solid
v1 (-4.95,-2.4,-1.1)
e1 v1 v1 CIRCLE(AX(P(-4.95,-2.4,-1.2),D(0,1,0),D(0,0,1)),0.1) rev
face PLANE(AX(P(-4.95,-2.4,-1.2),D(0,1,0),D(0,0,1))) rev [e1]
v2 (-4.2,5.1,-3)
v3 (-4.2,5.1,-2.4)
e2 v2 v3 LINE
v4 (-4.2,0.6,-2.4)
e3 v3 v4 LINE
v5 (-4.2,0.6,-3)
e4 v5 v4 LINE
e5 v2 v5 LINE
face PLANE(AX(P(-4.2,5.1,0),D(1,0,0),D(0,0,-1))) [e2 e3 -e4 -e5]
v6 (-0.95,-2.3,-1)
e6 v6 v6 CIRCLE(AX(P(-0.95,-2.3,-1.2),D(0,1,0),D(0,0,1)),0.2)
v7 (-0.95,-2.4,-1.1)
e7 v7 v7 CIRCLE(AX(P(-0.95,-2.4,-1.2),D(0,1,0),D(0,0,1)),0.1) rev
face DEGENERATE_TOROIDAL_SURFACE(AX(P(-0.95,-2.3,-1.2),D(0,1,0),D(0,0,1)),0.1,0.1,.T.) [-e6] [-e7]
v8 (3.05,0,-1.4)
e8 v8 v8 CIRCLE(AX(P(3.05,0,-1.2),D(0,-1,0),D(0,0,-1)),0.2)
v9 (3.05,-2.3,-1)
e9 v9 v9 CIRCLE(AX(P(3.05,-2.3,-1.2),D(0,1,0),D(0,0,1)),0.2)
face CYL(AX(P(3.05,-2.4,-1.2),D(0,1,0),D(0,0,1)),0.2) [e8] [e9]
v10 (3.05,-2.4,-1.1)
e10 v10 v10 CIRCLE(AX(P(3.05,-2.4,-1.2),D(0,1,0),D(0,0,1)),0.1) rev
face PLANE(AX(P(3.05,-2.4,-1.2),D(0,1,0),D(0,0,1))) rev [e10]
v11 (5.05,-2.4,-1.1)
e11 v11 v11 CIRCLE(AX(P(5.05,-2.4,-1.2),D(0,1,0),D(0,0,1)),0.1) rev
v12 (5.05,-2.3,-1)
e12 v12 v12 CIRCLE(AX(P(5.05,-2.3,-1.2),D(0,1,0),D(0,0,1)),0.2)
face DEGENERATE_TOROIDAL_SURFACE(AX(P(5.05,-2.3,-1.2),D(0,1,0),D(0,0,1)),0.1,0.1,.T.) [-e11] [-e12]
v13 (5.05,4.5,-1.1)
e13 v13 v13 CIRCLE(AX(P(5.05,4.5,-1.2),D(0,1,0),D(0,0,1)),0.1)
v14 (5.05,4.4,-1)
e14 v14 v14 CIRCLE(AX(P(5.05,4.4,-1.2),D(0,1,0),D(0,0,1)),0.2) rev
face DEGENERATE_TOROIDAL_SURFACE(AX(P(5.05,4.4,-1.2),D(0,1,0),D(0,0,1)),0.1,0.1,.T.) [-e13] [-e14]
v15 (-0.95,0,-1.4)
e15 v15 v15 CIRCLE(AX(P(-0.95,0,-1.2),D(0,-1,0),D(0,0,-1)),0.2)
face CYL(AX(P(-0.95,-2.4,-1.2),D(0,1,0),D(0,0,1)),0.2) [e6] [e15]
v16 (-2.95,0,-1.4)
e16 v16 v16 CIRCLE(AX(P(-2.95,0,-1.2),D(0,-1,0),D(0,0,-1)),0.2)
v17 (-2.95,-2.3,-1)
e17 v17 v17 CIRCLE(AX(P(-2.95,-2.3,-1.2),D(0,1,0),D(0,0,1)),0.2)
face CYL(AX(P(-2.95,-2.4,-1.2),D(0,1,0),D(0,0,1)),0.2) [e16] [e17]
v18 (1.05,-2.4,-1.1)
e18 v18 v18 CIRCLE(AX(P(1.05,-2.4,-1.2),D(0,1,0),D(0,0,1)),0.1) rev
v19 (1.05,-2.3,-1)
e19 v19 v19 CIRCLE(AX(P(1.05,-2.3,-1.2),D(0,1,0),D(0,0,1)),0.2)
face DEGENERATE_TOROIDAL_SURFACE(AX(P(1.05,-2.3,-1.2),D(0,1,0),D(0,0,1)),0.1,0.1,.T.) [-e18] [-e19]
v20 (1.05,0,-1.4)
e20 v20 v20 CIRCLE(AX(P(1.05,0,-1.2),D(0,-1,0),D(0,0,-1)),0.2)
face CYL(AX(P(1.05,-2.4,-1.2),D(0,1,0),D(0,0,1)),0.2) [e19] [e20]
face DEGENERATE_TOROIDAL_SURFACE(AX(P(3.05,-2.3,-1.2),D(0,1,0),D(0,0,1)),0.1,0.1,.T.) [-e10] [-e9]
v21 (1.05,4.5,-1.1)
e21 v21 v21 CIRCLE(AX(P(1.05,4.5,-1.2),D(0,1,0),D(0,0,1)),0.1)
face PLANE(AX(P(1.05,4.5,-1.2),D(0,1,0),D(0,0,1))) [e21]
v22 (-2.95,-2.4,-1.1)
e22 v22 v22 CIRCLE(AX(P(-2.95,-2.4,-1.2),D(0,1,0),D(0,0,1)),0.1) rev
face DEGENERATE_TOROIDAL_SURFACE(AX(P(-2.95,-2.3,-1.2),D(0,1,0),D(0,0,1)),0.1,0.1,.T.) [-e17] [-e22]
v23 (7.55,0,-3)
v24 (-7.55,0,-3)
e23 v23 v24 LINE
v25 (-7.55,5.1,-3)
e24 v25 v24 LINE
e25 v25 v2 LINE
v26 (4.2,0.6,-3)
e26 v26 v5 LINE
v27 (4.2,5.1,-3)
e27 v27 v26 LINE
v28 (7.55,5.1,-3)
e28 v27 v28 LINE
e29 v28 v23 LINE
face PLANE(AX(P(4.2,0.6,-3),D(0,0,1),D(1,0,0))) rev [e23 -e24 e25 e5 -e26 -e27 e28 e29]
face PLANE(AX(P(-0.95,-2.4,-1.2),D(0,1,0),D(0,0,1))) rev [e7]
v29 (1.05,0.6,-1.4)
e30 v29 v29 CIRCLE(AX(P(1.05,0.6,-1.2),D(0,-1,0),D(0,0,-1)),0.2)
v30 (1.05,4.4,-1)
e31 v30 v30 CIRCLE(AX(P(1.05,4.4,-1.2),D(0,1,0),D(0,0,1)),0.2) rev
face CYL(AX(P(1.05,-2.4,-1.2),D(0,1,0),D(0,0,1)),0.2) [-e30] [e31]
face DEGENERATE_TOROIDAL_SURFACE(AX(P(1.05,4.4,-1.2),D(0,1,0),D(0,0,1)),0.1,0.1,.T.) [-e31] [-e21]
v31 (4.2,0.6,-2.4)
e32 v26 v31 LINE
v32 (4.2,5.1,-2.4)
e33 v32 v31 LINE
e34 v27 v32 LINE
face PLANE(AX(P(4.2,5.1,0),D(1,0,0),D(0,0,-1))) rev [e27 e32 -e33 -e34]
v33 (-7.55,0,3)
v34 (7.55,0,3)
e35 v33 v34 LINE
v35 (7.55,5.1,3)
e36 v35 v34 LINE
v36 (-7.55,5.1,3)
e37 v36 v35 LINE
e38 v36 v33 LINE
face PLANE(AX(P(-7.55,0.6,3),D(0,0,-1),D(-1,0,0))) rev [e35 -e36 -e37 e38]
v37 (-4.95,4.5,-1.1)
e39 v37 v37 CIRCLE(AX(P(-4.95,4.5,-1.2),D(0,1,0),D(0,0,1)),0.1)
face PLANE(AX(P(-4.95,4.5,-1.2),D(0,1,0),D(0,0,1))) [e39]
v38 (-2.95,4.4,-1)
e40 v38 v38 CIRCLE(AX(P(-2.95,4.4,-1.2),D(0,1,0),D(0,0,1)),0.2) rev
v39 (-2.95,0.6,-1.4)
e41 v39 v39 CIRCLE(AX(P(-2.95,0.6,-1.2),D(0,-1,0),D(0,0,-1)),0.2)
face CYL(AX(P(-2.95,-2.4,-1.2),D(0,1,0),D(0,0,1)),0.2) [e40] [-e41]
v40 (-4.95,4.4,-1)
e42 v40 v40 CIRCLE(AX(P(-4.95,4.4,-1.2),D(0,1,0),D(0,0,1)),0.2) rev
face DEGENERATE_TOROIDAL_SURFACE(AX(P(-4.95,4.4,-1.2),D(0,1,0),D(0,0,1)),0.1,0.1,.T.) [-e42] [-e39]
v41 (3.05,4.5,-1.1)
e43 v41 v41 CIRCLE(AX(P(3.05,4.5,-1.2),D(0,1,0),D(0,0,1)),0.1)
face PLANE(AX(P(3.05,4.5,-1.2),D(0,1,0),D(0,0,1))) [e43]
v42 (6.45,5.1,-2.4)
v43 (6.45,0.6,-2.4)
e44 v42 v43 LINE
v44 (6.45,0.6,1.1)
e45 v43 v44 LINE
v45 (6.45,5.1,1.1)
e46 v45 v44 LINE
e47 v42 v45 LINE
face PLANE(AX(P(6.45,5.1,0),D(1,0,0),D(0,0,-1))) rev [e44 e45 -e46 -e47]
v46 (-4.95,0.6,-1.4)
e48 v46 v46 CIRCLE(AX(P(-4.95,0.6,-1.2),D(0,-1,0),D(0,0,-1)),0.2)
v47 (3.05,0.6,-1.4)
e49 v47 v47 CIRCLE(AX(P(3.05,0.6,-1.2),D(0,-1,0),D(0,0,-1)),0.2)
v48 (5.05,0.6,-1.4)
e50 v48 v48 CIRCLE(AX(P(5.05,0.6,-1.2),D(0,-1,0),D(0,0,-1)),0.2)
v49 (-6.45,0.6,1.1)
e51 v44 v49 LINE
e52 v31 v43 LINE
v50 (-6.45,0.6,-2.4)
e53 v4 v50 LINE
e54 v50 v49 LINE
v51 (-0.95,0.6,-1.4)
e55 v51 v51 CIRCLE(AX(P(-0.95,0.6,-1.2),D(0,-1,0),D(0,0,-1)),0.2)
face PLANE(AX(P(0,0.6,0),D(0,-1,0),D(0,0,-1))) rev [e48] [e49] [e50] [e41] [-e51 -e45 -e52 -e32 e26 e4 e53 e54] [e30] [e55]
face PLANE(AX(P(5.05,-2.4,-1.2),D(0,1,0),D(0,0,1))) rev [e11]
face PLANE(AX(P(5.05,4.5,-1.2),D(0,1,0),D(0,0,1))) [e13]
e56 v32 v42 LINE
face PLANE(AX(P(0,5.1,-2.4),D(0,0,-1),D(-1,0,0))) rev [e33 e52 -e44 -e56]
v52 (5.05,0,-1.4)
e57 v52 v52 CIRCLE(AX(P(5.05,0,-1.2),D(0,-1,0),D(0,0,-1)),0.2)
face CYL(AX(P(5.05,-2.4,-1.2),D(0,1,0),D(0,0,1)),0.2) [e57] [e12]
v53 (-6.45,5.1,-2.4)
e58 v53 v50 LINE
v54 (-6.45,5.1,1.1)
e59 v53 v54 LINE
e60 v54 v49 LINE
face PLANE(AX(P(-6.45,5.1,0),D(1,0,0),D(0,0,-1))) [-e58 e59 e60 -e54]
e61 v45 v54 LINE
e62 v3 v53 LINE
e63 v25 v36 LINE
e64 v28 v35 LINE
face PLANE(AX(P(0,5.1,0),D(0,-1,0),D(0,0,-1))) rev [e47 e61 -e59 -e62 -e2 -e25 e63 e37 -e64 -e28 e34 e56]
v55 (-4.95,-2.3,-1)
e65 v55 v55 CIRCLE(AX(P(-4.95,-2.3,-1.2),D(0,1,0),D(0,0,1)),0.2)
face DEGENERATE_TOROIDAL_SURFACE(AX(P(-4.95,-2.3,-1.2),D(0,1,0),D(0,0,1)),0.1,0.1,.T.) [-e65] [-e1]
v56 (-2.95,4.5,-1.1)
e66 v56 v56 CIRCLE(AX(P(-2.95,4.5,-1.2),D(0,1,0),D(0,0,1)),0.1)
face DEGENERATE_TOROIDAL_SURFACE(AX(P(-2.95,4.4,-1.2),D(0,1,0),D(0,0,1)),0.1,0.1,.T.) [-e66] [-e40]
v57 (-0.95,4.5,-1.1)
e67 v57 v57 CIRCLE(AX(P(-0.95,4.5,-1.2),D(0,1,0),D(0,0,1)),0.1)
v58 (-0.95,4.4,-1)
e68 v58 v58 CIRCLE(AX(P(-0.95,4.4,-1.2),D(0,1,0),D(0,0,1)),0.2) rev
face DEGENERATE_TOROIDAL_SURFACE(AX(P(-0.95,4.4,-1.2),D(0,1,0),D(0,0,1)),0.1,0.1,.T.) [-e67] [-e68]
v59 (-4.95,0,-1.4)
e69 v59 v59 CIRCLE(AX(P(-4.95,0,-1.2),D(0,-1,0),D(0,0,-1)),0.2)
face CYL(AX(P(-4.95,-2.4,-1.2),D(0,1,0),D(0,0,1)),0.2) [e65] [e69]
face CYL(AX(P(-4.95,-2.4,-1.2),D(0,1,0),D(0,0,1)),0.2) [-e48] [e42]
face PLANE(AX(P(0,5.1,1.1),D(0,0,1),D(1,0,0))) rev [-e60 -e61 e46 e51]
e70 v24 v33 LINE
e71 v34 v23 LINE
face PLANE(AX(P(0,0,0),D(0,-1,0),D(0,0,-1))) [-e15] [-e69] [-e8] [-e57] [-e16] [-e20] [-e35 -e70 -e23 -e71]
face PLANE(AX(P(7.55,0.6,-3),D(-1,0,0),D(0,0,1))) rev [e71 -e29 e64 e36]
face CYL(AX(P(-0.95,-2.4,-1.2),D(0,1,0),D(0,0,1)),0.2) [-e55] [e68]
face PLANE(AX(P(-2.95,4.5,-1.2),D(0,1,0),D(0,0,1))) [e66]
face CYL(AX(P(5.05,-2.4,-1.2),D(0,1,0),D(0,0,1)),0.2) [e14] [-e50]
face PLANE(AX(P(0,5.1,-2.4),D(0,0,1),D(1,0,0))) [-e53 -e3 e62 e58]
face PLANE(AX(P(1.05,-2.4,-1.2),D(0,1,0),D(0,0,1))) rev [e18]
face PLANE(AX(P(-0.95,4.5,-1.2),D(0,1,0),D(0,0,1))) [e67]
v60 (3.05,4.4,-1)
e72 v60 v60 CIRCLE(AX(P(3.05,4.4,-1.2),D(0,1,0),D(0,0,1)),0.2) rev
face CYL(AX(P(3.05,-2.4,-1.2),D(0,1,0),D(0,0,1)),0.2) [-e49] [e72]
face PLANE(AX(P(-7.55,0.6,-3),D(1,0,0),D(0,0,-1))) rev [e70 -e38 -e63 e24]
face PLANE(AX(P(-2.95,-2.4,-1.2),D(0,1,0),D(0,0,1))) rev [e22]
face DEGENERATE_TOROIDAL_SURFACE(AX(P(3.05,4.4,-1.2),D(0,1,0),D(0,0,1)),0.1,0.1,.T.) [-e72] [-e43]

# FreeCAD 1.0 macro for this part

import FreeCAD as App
import Part
import Sketcher
Q = App.Units.Quantity


def edges_at(feature, points):
    """Names of the edges that pass closest to the given points."""
    edges = feature.Shape.Edges
    near = lambda p: min(range(len(edges)), key=lambda i: edges[i].distToShape(Part.Vertex(*p))[0])
    return sorted({f"Edge{near(p) + 1}" for p in points})


def add_polygon(sketch, points):
    """Adds a closed chain of lines whose ends are joined by coincident constraints."""
    first, n = sketch.GeometryCount, len(points)
    for a, b in zip(points, points[1:] + points[:1]):
        sketch.addGeometry(Part.LineSegment(App.Vector(*a, 0), App.Vector(*b, 0)), False)
    for i in range(n):
        sketch.addConstraint(Sketcher.Constraint("Coincident", first + i, 2, first + (i + 1) % n, 1))

doc = App.newDocument("Part")
body = doc.addObject("PartDesign::Body", "Body")

# Sketch on XZ plane
sketch1 = body.newObject("Sketcher::SketchObject", "Sketch")
sketch1.AttachmentSupport = (doc.getObject("XZ_Plane"), [""])
sketch1.MapMode = "FlatFace"
add_polygon(sketch1, [(7.55, -3), (-7.55, -3), (-7.55, 3), (7.55, 3)])  # lines 0-3
sketch1.addConstraint(Sketcher.Constraint("Horizontal", 0))
sketch1.addConstraint(Sketcher.Constraint("Vertical", 1))
sketch1.addConstraint(Sketcher.Constraint("Horizontal", 2))
sketch1.addConstraint(Sketcher.Constraint("Vertical", 3))
sketch1.addConstraint(Sketcher.Constraint("Symmetric", 0, 2, 2, 2, -1, 1))
sketch1.addConstraint(Sketcher.Constraint("DistanceY", 1, 1, 1, 2, Q("6 mm")))
sketch1.addConstraint(Sketcher.Constraint("DistanceX", 0, 2, 0, 1, Q("15.1 mm")))
pad1 = body.newObject("PartDesign::Pad", "Pad")
pad1.Profile = sketch1
pad1.Length = 0.6
pad1.Reversed = True

# Sketch on XZ plane
sketch2 = body.newObject("Sketcher::SketchObject", "Sketch001")
sketch2.AttachmentSupport = (doc.getObject("XZ_Plane"), [""])
sketch2.MapMode = "FlatFace"
sketch2.AttachmentOffset = App.Placement(App.Vector(0, 0, -0.6), App.Rotation())
add_polygon(sketch2, [(-4.2, -2.4), (-4.2, -3), (-7.55, -3), (-7.55, 3), (7.55, 3), (7.55, -3), (4.2, -3), (4.2, -2.4), (6.45, -2.4), (6.45, 1.1), (-6.45, 1.1), (-6.45, -2.4)])  # lines 0-11
sketch2.addConstraint(Sketcher.Constraint("Vertical", 0))
sketch2.addConstraint(Sketcher.Constraint("Horizontal", 1))
sketch2.addConstraint(Sketcher.Constraint("Vertical", 2))
sketch2.addConstraint(Sketcher.Constraint("Horizontal", 3))
sketch2.addConstraint(Sketcher.Constraint("Vertical", 4))
sketch2.addConstraint(Sketcher.Constraint("Horizontal", 5))
sketch2.addConstraint(Sketcher.Constraint("Vertical", 6))
sketch2.addConstraint(Sketcher.Constraint("Horizontal", 7))
sketch2.addConstraint(Sketcher.Constraint("Vertical", 8))
sketch2.addConstraint(Sketcher.Constraint("Horizontal", 9))
sketch2.addConstraint(Sketcher.Constraint("Vertical", 10))
sketch2.addConstraint(Sketcher.Constraint("Horizontal", 11))
sketch2.addConstraint(Sketcher.Constraint("Symmetric", 1, 2, 3, 2, -1, 1))
sketch2.addConstraint(Sketcher.Constraint("Symmetric", 0, 2, 5, 2, -2))
sketch2.addConstraint(Sketcher.Constraint("Symmetric", 7, 2, 10, 2, -2))
sketch2.addConstraint(Sketcher.Constraint("DistanceY", 2, 1, 2, 2, Q("6 mm")))
sketch2.addConstraint(Sketcher.Constraint("DistanceX", 3, 1, 3, 2, Q("15.1 mm")))
sketch2.addConstraint(Sketcher.Constraint("DistanceX", 9, 2, 9, 1, Q("12.9 mm")))
sketch2.addConstraint(Sketcher.Constraint("DistanceY", 0, 2, 0, 1, Q("0.6 mm")))
sketch2.addConstraint(Sketcher.Constraint("DistanceY", 8, 1, 8, 2, Q("3.5 mm")))
sketch2.addConstraint(Sketcher.Constraint("DistanceX", 1, 2, 1, 1, Q("3.35 mm")))
pad2 = body.newObject("PartDesign::Pad", "Pad001")
pad2.Profile = sketch2
pad2.Length = 4.5
pad2.Reversed = True

# Sketch on XZ plane
sketch3 = body.newObject("Sketcher::SketchObject", "Sketch002")
sketch3.AttachmentSupport = (doc.getObject("XZ_Plane"), [""])
sketch3.MapMode = "FlatFace"
sketch3.AttachmentOffset = App.Placement(App.Vector(0, 0, -0.6), App.Rotation())
sketch3.addGeometry(Part.Circle(App.Vector(-4.95, -1.2, 0), App.Vector(0, 0, 1), 0.2), False)
sketch3.addGeometry(Part.Circle(App.Vector(-2.95, -1.2, 0), App.Vector(0, 0, 1), 0.2), False)
sketch3.addGeometry(Part.Circle(App.Vector(-0.95, -1.2, 0), App.Vector(0, 0, 1), 0.2), False)
sketch3.addGeometry(Part.Circle(App.Vector(1.05, -1.2, 0), App.Vector(0, 0, 1), 0.2), False)
sketch3.addGeometry(Part.Circle(App.Vector(3.05, -1.2, 0), App.Vector(0, 0, 1), 0.2), False)
sketch3.addGeometry(Part.Circle(App.Vector(5.05, -1.2, 0), App.Vector(0, 0, 1), 0.2), False)
sketch3.addConstraint(Sketcher.Constraint("Equal", 0, 1))
sketch3.addConstraint(Sketcher.Constraint("Equal", 1, 2))
sketch3.addConstraint(Sketcher.Constraint("Equal", 2, 3))
sketch3.addConstraint(Sketcher.Constraint("Equal", 3, 4))
sketch3.addConstraint(Sketcher.Constraint("Equal", 4, 5))
sketch3.addConstraint(Sketcher.Constraint("Horizontal", 0, 3, 1, 3))
sketch3.addConstraint(Sketcher.Constraint("Horizontal", 1, 3, 2, 3))
sketch3.addConstraint(Sketcher.Constraint("Horizontal", 2, 3, 3, 3))
sketch3.addConstraint(Sketcher.Constraint("Horizontal", 3, 3, 4, 3))
sketch3.addConstraint(Sketcher.Constraint("Horizontal", 4, 3, 5, 3))
sketch3.addConstraint(Sketcher.Constraint("Diameter", 0, Q("0.4 mm")))
sketch3.addConstraint(Sketcher.Constraint("DistanceX", 0, 3, 1, 3, Q("2 mm")))
sketch3.addConstraint(Sketcher.Constraint("DistanceX", 1, 3, 2, 3, Q("2 mm")))
sketch3.addConstraint(Sketcher.Constraint("DistanceX", 2, 3, 3, 3, Q("2 mm")))
sketch3.addConstraint(Sketcher.Constraint("DistanceX", 3, 3, 4, 3, Q("2 mm")))
sketch3.addConstraint(Sketcher.Constraint("DistanceX", 4, 3, 5, 3, Q("2 mm")))
sketch3.addConstraint(Sketcher.Constraint("DistanceY", 0, 3, -1, 1, Q("1.2 mm")))
sketch3.addConstraint(Sketcher.Constraint("DistanceX", 0, 3, -1, 1, Q("4.95 mm")))
pad3 = body.newObject("PartDesign::Pad", "Pad002")
pad3.Profile = sketch3
pad3.Type = "TwoLengths"
pad3.Length = 3.9
pad3.Length2 = 3
pad3.Reversed = True
doc.recompute()

fillet = body.newObject("PartDesign::Fillet", "Fillet")
fillet.Base = (pad3, edges_at(pad3, [
    (-4.95, -2.4, -1.4),
    (-4.95, 4.5, -1.4),
    (-2.95, -2.4, -1.4),
    (-2.95, 4.5, -1.4),
    (-0.95, -2.4, -1.4),
    (-0.95, 4.5, -1.4),
    (1.05, -2.4, -1.4),
    (1.05, 4.5, -1.4),
    (3.05, -2.4, -1.4),
    (3.05, 4.5, -1.4),
    (5.05, -2.4, -1.4),
    (5.05, 4.5, -1.4),
]))
fillet.Radius = 0.1

doc.recompute()
